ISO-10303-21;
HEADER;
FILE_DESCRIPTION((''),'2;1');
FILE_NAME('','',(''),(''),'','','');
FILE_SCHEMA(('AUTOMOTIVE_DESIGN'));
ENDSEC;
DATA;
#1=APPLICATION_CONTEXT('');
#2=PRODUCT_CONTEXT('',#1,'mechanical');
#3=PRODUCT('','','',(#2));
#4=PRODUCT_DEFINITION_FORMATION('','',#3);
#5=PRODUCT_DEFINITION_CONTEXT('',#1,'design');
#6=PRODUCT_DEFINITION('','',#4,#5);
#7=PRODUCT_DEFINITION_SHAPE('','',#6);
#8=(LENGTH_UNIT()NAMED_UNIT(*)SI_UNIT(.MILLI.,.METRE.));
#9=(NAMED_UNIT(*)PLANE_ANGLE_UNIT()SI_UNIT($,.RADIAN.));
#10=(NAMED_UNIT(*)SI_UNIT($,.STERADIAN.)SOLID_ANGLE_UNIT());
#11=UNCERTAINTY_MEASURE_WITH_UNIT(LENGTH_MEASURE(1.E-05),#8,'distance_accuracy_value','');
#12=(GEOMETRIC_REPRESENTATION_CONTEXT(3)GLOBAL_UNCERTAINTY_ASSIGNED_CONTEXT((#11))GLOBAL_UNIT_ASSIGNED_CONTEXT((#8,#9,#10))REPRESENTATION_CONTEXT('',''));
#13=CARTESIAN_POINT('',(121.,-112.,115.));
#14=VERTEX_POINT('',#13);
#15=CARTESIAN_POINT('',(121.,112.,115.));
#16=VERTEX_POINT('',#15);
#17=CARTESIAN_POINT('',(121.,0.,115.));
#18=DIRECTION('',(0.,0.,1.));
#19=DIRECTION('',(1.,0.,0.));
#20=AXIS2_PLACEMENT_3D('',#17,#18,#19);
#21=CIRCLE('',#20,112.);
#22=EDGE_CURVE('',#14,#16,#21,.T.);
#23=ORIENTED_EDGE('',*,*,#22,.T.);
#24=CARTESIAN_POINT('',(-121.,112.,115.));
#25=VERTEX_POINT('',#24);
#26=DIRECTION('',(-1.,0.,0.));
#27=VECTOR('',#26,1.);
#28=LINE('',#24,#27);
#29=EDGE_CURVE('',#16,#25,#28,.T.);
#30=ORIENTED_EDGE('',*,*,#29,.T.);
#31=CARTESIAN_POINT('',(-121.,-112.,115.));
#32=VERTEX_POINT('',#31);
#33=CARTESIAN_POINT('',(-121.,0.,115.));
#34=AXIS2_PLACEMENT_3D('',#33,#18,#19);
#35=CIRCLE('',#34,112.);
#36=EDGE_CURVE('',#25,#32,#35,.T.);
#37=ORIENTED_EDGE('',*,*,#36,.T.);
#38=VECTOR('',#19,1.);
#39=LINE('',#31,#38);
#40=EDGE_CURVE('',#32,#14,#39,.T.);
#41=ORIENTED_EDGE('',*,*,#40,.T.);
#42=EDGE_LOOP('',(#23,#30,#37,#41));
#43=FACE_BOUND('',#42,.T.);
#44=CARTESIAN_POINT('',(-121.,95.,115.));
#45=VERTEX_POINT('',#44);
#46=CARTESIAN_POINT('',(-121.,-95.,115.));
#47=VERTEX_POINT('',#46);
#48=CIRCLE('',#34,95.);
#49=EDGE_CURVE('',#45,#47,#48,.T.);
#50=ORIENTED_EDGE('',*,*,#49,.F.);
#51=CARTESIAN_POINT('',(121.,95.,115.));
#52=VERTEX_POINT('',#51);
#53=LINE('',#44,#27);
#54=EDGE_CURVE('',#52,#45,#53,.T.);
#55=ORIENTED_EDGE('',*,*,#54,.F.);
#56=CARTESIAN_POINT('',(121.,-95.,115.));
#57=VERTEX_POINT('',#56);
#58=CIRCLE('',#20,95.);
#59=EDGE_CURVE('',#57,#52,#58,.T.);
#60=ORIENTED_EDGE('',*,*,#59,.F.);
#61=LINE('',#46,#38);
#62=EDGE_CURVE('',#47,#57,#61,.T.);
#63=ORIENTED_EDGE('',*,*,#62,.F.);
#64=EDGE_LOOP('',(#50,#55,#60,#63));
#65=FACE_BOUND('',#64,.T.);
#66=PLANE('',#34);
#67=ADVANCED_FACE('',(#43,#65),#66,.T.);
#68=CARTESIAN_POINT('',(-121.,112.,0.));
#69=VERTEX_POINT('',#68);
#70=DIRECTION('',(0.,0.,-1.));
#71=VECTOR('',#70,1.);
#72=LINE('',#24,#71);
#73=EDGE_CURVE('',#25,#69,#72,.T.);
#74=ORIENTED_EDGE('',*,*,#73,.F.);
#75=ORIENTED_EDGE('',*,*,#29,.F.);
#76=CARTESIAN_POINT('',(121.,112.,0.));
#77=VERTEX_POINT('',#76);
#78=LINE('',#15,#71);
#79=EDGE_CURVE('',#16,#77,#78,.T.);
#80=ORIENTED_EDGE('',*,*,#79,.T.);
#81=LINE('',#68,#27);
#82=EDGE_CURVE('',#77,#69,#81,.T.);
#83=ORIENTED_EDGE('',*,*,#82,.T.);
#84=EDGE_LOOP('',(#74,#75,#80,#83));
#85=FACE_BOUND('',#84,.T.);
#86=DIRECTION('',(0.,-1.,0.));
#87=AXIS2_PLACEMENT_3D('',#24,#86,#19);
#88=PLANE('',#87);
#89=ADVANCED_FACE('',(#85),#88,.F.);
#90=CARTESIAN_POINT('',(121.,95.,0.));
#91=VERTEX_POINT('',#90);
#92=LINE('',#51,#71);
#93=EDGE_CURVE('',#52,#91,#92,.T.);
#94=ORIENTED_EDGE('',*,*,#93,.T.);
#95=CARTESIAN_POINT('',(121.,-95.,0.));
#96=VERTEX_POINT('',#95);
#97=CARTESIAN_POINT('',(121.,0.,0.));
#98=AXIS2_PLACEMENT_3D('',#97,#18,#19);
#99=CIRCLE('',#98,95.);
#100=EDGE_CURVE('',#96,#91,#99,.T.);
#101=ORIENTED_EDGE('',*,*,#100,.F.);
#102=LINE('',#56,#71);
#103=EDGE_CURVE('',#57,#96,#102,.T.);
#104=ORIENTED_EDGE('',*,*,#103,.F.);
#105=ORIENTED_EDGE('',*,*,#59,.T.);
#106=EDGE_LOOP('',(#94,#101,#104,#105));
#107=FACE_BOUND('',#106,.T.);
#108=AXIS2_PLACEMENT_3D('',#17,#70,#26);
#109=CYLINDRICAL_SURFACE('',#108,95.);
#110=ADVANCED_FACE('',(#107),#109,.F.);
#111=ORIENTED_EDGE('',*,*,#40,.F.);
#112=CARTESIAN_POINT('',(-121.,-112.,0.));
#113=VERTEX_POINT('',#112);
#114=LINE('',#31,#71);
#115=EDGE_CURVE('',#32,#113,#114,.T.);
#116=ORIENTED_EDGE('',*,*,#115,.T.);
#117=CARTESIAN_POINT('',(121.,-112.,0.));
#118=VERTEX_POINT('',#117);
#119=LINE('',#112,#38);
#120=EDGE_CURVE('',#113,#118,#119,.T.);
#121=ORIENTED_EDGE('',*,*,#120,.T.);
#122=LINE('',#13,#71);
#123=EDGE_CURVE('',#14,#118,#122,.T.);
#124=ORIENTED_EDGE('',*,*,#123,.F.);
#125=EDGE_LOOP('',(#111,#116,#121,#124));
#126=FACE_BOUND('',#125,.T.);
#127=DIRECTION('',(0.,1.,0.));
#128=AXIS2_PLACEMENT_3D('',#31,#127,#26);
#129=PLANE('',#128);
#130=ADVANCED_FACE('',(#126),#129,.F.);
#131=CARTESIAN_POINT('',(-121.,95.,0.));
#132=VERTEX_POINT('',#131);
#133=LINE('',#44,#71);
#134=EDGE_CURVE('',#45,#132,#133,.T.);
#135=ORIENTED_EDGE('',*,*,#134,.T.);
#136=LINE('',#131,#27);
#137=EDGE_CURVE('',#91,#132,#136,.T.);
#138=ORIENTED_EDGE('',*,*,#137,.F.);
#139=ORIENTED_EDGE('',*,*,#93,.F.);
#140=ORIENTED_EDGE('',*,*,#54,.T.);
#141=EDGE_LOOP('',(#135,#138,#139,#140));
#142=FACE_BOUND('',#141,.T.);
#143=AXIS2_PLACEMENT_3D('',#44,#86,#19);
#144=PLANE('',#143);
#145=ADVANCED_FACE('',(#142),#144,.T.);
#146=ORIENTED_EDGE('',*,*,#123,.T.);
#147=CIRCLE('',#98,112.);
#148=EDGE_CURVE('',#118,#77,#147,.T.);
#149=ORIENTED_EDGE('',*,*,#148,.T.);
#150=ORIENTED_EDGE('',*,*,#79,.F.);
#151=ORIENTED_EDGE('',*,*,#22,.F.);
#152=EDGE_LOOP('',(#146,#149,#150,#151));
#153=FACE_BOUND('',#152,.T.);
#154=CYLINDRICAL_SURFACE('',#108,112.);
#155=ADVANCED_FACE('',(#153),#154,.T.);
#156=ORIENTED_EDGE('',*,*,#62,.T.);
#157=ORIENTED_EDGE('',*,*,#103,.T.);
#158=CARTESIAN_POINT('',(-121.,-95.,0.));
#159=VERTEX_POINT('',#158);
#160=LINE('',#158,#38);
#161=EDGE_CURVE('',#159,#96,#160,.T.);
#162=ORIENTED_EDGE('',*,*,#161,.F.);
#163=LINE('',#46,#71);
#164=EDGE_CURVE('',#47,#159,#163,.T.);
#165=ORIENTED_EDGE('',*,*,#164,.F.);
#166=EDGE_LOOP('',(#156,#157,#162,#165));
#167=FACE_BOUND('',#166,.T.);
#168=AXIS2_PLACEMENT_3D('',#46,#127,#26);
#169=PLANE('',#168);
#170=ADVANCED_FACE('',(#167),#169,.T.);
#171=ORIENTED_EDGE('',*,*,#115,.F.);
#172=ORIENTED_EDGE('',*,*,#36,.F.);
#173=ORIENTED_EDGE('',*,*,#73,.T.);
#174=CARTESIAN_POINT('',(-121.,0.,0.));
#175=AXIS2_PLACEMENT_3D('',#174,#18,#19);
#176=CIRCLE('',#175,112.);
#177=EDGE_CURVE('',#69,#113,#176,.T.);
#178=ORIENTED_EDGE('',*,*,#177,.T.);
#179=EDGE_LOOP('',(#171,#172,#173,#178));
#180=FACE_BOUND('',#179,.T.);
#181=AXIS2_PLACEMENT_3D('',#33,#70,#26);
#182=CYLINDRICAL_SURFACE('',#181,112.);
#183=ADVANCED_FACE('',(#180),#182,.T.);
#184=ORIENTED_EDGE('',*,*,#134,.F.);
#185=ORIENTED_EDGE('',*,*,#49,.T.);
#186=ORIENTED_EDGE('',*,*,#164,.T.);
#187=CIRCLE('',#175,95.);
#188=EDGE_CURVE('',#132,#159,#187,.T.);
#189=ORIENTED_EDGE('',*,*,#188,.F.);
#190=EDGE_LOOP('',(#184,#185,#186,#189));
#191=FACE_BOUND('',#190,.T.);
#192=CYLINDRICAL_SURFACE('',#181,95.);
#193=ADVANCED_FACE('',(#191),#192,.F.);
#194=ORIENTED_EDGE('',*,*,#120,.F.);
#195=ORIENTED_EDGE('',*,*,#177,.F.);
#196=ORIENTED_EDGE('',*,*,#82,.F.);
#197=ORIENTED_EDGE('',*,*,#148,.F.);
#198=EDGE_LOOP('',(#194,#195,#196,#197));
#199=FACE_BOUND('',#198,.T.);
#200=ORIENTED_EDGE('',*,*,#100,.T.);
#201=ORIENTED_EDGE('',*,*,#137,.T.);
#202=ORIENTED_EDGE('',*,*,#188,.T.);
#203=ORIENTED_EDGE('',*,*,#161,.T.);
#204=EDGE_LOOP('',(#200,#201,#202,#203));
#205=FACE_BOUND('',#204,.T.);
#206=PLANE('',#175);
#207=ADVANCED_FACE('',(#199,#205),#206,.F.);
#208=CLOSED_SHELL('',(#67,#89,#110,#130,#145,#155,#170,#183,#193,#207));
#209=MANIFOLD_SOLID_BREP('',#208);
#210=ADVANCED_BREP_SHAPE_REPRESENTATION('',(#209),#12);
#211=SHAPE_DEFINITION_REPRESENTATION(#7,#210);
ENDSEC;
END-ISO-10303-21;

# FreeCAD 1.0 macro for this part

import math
import FreeCAD as App
import Part
import Sketcher

V = App.Vector
Q = App.Units.Quantity

doc = App.newDocument("Part")
body = doc.addObject("PartDesign::Body", "Body")

# Sketch on XY plane
sketch1 = body.newObject("Sketcher::SketchObject", "Sketch")
sketch1.AttachmentSupport = (doc.getObject("XY_Plane"), [""])
sketch1.MapMode = "FlatFace"
sketch1.addGeometry(Part.LineSegment(V(121, 112, 0), V(-121, 112, 0)), False)
sketch1.addGeometry(Part.ArcOfCircle(Part.Circle(V(-121, 0, 0), V(0, 0, 1), 112), math.radians(90), math.radians(270)), False)
sketch1.addGeometry(Part.LineSegment(V(-121, -112, 0), V(121, -112, 0)), False)
sketch1.addGeometry(Part.ArcOfCircle(Part.Circle(V(121, 0, 0), V(0, 0, 1), 112), math.radians(-90), math.radians(90)), False)
sketch1.addGeometry(Part.LineSegment(V(-121, 95, 0), V(121, 95, 0)), False)
sketch1.addGeometry(Part.ArcOfCircle(Part.Circle(V(121, 0, 0), V(0, 0, 1), 95), math.radians(-90), math.radians(90)), False)
sketch1.addGeometry(Part.LineSegment(V(121, -95, 0), V(-121, -95, 0)), False)
sketch1.addGeometry(Part.ArcOfCircle(Part.Circle(V(-121, 0, 0), V(0, 0, 1), 95), math.radians(90), math.radians(270)), False)
sketch1.addConstraint(Sketcher.Constraint("Tangent", 0, 2, 1, 1))
sketch1.addConstraint(Sketcher.Constraint("Tangent", 1, 2, 2, 1))
sketch1.addConstraint(Sketcher.Constraint("Tangent", 2, 2, 3, 1))
sketch1.addConstraint(Sketcher.Constraint("Tangent", 3, 2, 0, 1))
sketch1.addConstraint(Sketcher.Constraint("Tangent", 4, 2, 5, 2))
sketch1.addConstraint(Sketcher.Constraint("Tangent", 5, 1, 6, 1))
sketch1.addConstraint(Sketcher.Constraint("Tangent", 6, 2, 7, 2))
sketch1.addConstraint(Sketcher.Constraint("Tangent", 7, 1, 4, 1))
sketch1.addConstraint(Sketcher.Constraint("Horizontal", 0))
sketch1.addConstraint(Sketcher.Constraint("Horizontal", 2))
sketch1.addConstraint(Sketcher.Constraint("Horizontal", 4))
sketch1.addConstraint(Sketcher.Constraint("Horizontal", 6))
sketch1.addConstraint(Sketcher.Constraint("Coincident", 5, 3, 3, 3))
sketch1.addConstraint(Sketcher.Constraint("Symmetric", 1, 3, 3, 3, -1, 1))
sketch1.addConstraint(Sketcher.Constraint("Vertical", 7, 3, 0, 2))
sketch1.addConstraint(Sketcher.Constraint("Radius", 1, Q("112 mm")))
sketch1.addConstraint(Sketcher.Constraint("Radius", 5, Q("95 mm")))
sketch1.addConstraint(Sketcher.Constraint("DistanceX", 0, 2, 0, 1, Q("242 mm")))
pad1 = body.newObject("PartDesign::Pad", "Pad")
pad1.Profile = sketch1
pad1.Length = 115

doc.recompute()
